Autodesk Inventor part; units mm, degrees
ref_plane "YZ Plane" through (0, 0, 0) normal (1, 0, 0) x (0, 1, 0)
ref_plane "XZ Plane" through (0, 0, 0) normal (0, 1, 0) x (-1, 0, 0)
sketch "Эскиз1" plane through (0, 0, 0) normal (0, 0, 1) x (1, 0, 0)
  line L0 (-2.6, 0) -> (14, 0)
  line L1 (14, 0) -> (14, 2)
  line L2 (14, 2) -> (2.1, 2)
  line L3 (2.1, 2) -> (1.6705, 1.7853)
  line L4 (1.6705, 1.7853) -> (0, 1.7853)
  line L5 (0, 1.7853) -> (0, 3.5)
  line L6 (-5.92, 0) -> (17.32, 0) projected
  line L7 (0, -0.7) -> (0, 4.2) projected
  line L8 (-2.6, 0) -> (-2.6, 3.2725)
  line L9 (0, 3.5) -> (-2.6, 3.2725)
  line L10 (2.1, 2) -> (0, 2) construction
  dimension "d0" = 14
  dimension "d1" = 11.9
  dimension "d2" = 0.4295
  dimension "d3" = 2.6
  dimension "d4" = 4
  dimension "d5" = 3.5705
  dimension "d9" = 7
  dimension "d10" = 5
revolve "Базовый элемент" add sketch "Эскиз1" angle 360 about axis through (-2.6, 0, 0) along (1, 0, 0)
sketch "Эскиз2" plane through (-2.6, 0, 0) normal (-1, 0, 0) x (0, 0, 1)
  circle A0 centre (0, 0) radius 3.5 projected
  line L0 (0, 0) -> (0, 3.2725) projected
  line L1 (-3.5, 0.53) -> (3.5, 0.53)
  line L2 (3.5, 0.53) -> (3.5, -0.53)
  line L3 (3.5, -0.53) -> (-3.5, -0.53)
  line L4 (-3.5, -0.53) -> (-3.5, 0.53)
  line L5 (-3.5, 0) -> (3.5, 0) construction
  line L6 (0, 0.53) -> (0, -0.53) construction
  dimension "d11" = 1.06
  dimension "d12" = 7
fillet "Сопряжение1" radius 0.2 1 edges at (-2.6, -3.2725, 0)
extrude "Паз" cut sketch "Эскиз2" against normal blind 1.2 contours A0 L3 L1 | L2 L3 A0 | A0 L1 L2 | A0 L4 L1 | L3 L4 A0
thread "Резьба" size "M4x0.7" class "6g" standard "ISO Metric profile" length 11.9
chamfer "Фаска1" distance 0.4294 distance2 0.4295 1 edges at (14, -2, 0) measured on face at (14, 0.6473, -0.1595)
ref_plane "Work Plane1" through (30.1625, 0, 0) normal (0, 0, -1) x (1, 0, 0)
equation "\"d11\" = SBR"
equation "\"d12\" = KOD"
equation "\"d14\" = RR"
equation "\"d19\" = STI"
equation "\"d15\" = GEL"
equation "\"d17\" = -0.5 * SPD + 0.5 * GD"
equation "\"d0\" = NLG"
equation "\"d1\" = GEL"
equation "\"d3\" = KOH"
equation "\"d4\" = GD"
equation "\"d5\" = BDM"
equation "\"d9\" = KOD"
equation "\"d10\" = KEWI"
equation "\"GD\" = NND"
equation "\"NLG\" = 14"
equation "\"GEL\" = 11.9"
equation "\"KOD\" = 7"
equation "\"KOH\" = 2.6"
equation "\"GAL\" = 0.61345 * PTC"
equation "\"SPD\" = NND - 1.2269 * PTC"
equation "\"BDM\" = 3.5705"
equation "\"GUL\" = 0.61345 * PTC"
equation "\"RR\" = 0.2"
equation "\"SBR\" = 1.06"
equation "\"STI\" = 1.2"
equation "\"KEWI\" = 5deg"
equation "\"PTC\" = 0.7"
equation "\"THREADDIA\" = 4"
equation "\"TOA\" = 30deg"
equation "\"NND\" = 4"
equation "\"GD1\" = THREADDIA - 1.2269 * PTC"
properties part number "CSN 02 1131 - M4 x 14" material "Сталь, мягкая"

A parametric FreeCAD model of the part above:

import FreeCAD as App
import Part
import Sketcher
Q = App.Units.Quantity


def edges_at(feature, points):
    """Names of the edges that pass closest to the given points."""
    edges = feature.Shape.Edges
    near = lambda p: min(range(len(edges)), key=lambda i: edges[i].distToShape(Part.Vertex(*p))[0])
    return sorted({f"Edge{near(p) + 1}" for p in points})


def add_polygon(sketch, points):
    """Adds a closed chain of lines whose ends are joined by coincident constraints."""
    first, n = sketch.GeometryCount, len(points)
    for a, b in zip(points, points[1:] + points[:1]):
        sketch.addGeometry(Part.LineSegment(App.Vector(*a, 0), App.Vector(*b, 0)), False)
    for i in range(n):
        sketch.addConstraint(Sketcher.Constraint("Coincident", first + i, 2, first + (i + 1) % n, 1))

doc = App.newDocument("Part")
body = doc.addObject("PartDesign::Body", "Body")

# Sketch on XY plane
sketch1 = body.newObject("Sketcher::SketchObject", "Sketch")
sketch1.AttachmentSupport = (doc.getObject("XY_Plane"), [""])
sketch1.MapMode = "FlatFace"
add_polygon(sketch1, [(-2.6, 3.27), (-2.6, 0), (14, 0), (14, 2), (2.1, 2), (1.67, 1.79), (0, 1.79), (0, 3.5)])  # lines 0-7
sketch1.addConstraint(Sketcher.Constraint("Vertical", 0))
sketch1.addConstraint(Sketcher.Constraint("Horizontal", 1))
sketch1.addConstraint(Sketcher.Constraint("Vertical", 2))
sketch1.addConstraint(Sketcher.Constraint("Horizontal", 3))
sketch1.addConstraint(Sketcher.Constraint("Horizontal", 5))
sketch1.addConstraint(Sketcher.Constraint("Vertical", 6))
sketch1.addConstraint(Sketcher.Constraint("PointOnObject", 0, 2, -1))
sketch1.addConstraint(Sketcher.Constraint("PointOnObject", 5, 2, -2))
sketch1.addConstraint(Sketcher.Constraint("DistanceX", 3, 2, 3, 1, Q("11.9 mm")))
sketch1.addConstraint(Sketcher.Constraint("DistanceX", -1, 1, 1, 2, Q("14 mm")))
sketch1.addConstraint(Sketcher.Constraint("DistanceX", 0, 2, -1, 1, Q("2.6 mm")))
sketch1.addConstraint(Sketcher.Constraint("DistanceY", 2, 1, 2, 2, Q("2 mm")))
sketch1.addConstraint(Sketcher.Constraint("Angle", 7, Q("-174.9994 deg")))
sketch1.addConstraint(Sketcher.Constraint("DistanceY", -1, 1, 6, 2, Q("3.5 mm")))
sketch1.addConstraint(Sketcher.Constraint("Angle", 4, Q("-153.4403 deg")))
sketch1.addConstraint(Sketcher.Constraint("DistanceX", 4, 2, 3, 2, Q("0.4295 mm")))
revolution = body.newObject("PartDesign::Revolution", "Revolution")
revolution.Profile = sketch1
revolution.ReferenceAxis = (sketch1, ["H_Axis"])
revolution.Angle = 360
doc.recompute()

fillet = body.newObject("PartDesign::Fillet", "Fillet")
fillet.Base = (revolution, edges_at(revolution, [(-2.6, -3.272, 0)]))
fillet.Radius = 0.2

# Sketch on YZ plane
sketch2 = body.newObject("Sketcher::SketchObject", "Sketch001")
sketch2.AttachmentSupport = (doc.getObject("YZ_Plane"), [""])
sketch2.MapMode = "FlatFace"
sketch2.AttachmentOffset = App.Placement(App.Vector(0, 0, -2.6), App.Rotation())
add_polygon(sketch2, [(-0.5, 3.5), (0.5, 3.5), (0.5, -3.5), (-0.5, -3.5)])  # lines 0-3
sketch2.addConstraint(Sketcher.Constraint("Horizontal", 0))
sketch2.addConstraint(Sketcher.Constraint("Vertical", 1))
sketch2.addConstraint(Sketcher.Constraint("Horizontal", 2))
sketch2.addConstraint(Sketcher.Constraint("Vertical", 3))
sketch2.addConstraint(Sketcher.Constraint("Symmetric", 0, 2, 2, 2, -1, 1))
sketch2.addConstraint(Sketcher.Constraint("DistanceY", 1, 2, 1, 1, Q("7 mm")))
sketch2.addConstraint(Sketcher.Constraint("DistanceX", 0, 1, 0, 2, Q("1.06 mm")))
pocket1 = body.newObject("PartDesign::Pocket", "Pocket")
pocket1.Profile = sketch2
pocket1.Length = 1.2
pocket1.Reversed = True
doc.recompute()

chamfer = body.newObject("PartDesign::Chamfer", "Chamfer")
chamfer.Base = (pocket1, edges_at(pocket1, [(14, -2, 0)]))
chamfer.ChamferType = "Two distances"
chamfer.Size = 0.4294
chamfer.Size2 = 0.4295

doc.recompute()
